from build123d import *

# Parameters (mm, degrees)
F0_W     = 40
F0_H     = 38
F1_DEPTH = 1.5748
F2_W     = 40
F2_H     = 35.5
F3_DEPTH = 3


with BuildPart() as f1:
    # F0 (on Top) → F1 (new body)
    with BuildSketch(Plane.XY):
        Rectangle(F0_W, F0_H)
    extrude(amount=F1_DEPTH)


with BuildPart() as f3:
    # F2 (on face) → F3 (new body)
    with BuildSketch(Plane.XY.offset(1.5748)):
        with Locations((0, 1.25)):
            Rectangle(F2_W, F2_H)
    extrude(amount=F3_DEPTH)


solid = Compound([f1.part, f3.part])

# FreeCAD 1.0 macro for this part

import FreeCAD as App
import Part
import Sketcher

V = App.Vector

doc = App.newDocument("Part")
body = doc.addObject("PartDesign::Body", "Body")

# Sketch on XY plane
sketch1 = body.newObject("Sketcher::SketchObject", "Sketch")
sketch1.AttachmentSupport = (doc.getObject("XY_Plane"), [""])
sketch1.MapMode = "FlatFace"
sketch1.addGeometry(Part.LineSegment(V(-20, 19, 0), V(-20, -19, 0)), False)
sketch1.addGeometry(Part.LineSegment(V(-20, -19, 0), V(20, -19, 0)), False)
sketch1.addGeometry(Part.LineSegment(V(20, -19, 0), V(20, 19, 0)), False)
sketch1.addGeometry(Part.LineSegment(V(20, 19, 0), V(-20, 19, 0)), False)
sketch1.addConstraint(Sketcher.Constraint("Coincident", 0, 2, 1, 1))
sketch1.addConstraint(Sketcher.Constraint("Coincident", 1, 2, 2, 1))
sketch1.addConstraint(Sketcher.Constraint("Coincident", 2, 2, 3, 1))
sketch1.addConstraint(Sketcher.Constraint("Coincident", 3, 2, 0, 1))
sketch1.addConstraint(Sketcher.Constraint("Vertical", 0))
sketch1.addConstraint(Sketcher.Constraint("Horizontal", 1))
sketch1.addConstraint(Sketcher.Constraint("Vertical", 2))
sketch1.addConstraint(Sketcher.Constraint("Horizontal", 3))
sketch1.addConstraint(Sketcher.Constraint("Symmetric", 0, 2, 2, 2, -1, 1))
sketch1.addConstraint(Sketcher.Constraint("DistanceX", 1, 1, 1, 2, 40.0))
sketch1.addConstraint(Sketcher.Constraint("DistanceY", 0, 2, 0, 1, 38.0))
pad1 = body.newObject("PartDesign::Pad", "Pad")
pad1.Profile = sketch1
pad1.Length = 1.5748
body2 = doc.addObject("PartDesign::Body", "Body001")

# Sketch on XY plane
sketch2 = body2.newObject("Sketcher::SketchObject", "Sketch001")
sketch2.AttachmentSupport = (doc.getObject("XY_Plane001"), [""])
sketch2.MapMode = "FlatFace"
sketch2.AttachmentOffset = App.Placement(V(0, 0, 1.5748), App.Rotation())
sketch2.addGeometry(Part.LineSegment(V(-20, 19, 0), V(-20, -16.5, 0)), False)
sketch2.addGeometry(Part.LineSegment(V(-20, -16.5, 0), V(20, -16.5, 0)), False)
sketch2.addGeometry(Part.LineSegment(V(20, -16.5, 0), V(20, 19, 0)), False)
sketch2.addGeometry(Part.LineSegment(V(20, 19, 0), V(-20, 19, 0)), False)
sketch2.addConstraint(Sketcher.Constraint("Coincident", 0, 2, 1, 1))
sketch2.addConstraint(Sketcher.Constraint("Coincident", 1, 2, 2, 1))
sketch2.addConstraint(Sketcher.Constraint("Coincident", 2, 2, 3, 1))
sketch2.addConstraint(Sketcher.Constraint("Coincident", 3, 2, 0, 1))
sketch2.addConstraint(Sketcher.Constraint("Vertical", 0))
sketch2.addConstraint(Sketcher.Constraint("Horizontal", 1))
sketch2.addConstraint(Sketcher.Constraint("Vertical", 2))
sketch2.addConstraint(Sketcher.Constraint("Horizontal", 3))
sketch2.addConstraint(Sketcher.Constraint("DistanceX", 1, 1, 1, 2, 40.0))
sketch2.addConstraint(Sketcher.Constraint("DistanceY", 0, 2, 0, 1, 35.5))
sketch2.addConstraint(Sketcher.Constraint("DistanceX", 0, 2, -1, 1, 20.0))
sketch2.addConstraint(Sketcher.Constraint("DistanceY", -1, 1, 2, 2, 19.0))
pad2 = body2.newObject("PartDesign::Pad", "Pad001")
pad2.Profile = sketch2
pad2.Length = 3

doc.recompute()
